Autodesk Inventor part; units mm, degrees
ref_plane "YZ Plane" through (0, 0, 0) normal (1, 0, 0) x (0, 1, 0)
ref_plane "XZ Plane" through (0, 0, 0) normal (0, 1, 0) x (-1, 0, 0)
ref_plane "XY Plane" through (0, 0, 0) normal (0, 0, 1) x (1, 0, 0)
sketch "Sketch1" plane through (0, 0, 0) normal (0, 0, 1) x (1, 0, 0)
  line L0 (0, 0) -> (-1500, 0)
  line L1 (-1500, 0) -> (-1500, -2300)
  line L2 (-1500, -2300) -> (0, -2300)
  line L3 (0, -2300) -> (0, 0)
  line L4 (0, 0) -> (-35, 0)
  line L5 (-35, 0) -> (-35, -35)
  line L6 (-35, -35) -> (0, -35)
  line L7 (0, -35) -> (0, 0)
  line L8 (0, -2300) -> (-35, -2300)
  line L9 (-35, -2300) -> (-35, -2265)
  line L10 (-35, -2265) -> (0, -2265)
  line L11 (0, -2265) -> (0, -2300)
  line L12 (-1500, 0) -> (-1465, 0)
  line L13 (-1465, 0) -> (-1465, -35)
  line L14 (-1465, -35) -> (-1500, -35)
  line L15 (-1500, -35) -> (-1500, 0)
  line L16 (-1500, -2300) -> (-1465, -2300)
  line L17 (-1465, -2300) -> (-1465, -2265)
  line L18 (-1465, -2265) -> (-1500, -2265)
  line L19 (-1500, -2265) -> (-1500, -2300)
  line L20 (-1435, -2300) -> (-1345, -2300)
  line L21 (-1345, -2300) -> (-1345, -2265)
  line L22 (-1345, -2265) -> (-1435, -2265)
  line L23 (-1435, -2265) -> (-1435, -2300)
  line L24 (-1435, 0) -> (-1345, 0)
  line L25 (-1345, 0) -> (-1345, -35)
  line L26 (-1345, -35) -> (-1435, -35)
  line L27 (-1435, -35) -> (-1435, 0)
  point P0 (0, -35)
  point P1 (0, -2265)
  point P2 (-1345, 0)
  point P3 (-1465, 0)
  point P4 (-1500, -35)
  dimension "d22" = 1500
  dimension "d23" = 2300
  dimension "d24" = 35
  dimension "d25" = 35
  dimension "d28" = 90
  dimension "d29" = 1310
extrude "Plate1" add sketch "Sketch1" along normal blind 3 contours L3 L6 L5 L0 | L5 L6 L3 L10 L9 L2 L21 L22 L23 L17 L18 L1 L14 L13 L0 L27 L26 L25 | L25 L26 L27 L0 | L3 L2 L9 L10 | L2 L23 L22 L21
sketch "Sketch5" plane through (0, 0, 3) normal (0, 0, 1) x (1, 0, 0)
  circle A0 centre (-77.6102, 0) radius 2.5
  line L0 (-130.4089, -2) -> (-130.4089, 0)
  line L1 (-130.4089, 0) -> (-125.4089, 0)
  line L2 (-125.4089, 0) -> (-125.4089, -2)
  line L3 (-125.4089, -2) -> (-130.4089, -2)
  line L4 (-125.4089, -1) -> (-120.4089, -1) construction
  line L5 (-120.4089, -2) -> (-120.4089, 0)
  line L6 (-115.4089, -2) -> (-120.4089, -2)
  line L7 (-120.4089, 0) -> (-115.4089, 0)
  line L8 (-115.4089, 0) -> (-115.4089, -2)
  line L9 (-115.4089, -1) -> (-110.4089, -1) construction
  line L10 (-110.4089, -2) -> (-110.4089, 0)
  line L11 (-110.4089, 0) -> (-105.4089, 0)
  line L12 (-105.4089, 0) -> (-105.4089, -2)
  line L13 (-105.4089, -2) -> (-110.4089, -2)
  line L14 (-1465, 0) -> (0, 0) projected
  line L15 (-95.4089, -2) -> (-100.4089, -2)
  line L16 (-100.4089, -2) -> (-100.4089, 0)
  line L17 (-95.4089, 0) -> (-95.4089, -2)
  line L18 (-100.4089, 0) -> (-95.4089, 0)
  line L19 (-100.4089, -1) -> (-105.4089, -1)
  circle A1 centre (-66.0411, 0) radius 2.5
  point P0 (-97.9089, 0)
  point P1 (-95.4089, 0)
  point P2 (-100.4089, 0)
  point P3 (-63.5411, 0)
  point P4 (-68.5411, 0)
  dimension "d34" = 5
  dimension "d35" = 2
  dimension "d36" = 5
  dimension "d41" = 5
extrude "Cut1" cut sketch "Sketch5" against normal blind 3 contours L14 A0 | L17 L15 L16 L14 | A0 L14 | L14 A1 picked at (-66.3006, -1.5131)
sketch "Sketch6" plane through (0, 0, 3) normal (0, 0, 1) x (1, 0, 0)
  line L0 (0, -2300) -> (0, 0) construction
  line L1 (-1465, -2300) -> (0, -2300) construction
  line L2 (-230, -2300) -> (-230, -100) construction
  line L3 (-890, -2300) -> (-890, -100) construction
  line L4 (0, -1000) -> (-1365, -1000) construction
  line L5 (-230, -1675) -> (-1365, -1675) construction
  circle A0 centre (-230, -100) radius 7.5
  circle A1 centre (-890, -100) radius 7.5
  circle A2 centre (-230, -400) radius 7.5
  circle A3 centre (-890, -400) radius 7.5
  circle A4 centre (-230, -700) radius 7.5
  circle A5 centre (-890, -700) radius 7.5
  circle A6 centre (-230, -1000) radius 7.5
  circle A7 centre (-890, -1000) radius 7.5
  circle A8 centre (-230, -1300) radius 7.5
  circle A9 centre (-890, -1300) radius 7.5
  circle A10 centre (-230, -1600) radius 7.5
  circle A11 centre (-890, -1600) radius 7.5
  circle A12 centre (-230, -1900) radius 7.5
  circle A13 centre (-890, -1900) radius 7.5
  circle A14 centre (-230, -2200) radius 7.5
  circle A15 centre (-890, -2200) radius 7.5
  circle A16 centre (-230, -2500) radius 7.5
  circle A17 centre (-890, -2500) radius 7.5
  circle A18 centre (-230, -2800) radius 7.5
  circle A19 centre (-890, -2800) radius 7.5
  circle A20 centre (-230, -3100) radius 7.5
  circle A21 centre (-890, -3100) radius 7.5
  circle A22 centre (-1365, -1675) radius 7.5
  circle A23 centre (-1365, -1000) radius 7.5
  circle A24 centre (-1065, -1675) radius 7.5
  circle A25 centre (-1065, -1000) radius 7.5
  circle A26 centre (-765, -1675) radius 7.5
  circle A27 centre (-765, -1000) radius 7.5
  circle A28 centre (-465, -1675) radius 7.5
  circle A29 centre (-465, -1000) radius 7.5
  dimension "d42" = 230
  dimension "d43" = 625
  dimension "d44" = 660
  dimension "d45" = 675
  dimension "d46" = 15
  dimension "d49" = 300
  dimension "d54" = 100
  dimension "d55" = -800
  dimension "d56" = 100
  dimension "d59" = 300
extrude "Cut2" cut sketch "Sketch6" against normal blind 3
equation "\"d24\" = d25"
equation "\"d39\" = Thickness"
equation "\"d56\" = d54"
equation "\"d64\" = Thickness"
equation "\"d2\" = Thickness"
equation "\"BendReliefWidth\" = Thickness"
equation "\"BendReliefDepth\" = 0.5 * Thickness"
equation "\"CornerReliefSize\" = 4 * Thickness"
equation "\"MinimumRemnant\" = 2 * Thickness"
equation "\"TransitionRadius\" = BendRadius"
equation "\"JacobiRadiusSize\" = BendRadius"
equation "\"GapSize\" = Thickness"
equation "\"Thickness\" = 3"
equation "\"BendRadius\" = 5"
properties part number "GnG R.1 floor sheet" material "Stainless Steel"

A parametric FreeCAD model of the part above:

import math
import FreeCAD as App
import Part
import Sketcher
Q = App.Units.Quantity

doc = App.newDocument("Part")
params = doc.addObject("Spreadsheet::Sheet", "Params")
for row, (alias, value) in enumerate([
    ("sketch1_width", "35 mm"),
    ("sketch1_height", "2300 mm"),
    ("pad1_length", "3 mm"),
    ("sketch2_diameter", "5 mm"),
    ("sketch2_height", "2 mm"),
    ("pocket1_length", "3 mm"),
    ("sketch3_diameter", "15 mm"),
    ("pocket2_length", "3 mm"),
], start=1):
    params.set(f"A{row}", alias)
    params.set(f"B{row}", "=" + value)
    params.setAlias(f"B{row}", alias)

body = doc.addObject("PartDesign::Body", "Body")

# Sketch on XY plane
sketch1 = body.newObject("Sketcher::SketchObject", "Sketch")
sketch1.AttachmentSupport = (doc.getObject("XY_Plane"), [""])
sketch1.MapMode = "FlatFace"
sketch1.addGeometry(Part.LineSegment(App.Vector(0, 0, 0), App.Vector(-1465, 0, 0)), False)
sketch1.addGeometry(Part.LineSegment(App.Vector(-1465, 0, 0), App.Vector(-1465, -35, 0)), False)
sketch1.addGeometry(Part.LineSegment(App.Vector(-1465, -35, 0), App.Vector(-1500, -35, 0)), False)
sketch1.addGeometry(Part.LineSegment(App.Vector(-1500, -35, 0), App.Vector(-1500, -2265, 0)), False)
sketch1.addGeometry(Part.LineSegment(App.Vector(-1500, -2265, 0), App.Vector(-1465, -2265, 0)), False)
sketch1.addGeometry(Part.LineSegment(App.Vector(-1465, -2265, 0), App.Vector(-1465, -2300, 0)), False)
sketch1.addGeometry(Part.LineSegment(App.Vector(-1465, -2300, 0), App.Vector(0, -2300, 0)), False)
sketch1.addGeometry(Part.LineSegment(App.Vector(0, -2300, 0), App.Vector(0, 0, 0)), False)
sketch1.addConstraint(Sketcher.Constraint("Coincident", 0, 2, 1, 1))
sketch1.addConstraint(Sketcher.Constraint("Coincident", 1, 2, 2, 1))
sketch1.addConstraint(Sketcher.Constraint("Coincident", 2, 2, 3, 1))
sketch1.addConstraint(Sketcher.Constraint("Coincident", 3, 2, 4, 1))
sketch1.addConstraint(Sketcher.Constraint("Coincident", 4, 2, 5, 1))
sketch1.addConstraint(Sketcher.Constraint("Coincident", 5, 2, 6, 1))
sketch1.addConstraint(Sketcher.Constraint("Coincident", 6, 2, 7, 1))
sketch1.addConstraint(Sketcher.Constraint("Coincident", 7, 2, 0, 1))
sketch1.addConstraint(Sketcher.Constraint("Horizontal", 0))
sketch1.addConstraint(Sketcher.Constraint("Vertical", 1))
sketch1.addConstraint(Sketcher.Constraint("Horizontal", 2))
sketch1.addConstraint(Sketcher.Constraint("Vertical", 3))
sketch1.addConstraint(Sketcher.Constraint("Horizontal", 4))
sketch1.addConstraint(Sketcher.Constraint("Vertical", 5))
sketch1.addConstraint(Sketcher.Constraint("Horizontal", 6))
sketch1.addConstraint(Sketcher.Constraint("Vertical", 7))
sketch1.addConstraint(Sketcher.Constraint("Coincident", 7, 2, -1, 1))
sketch1.addConstraint(Sketcher.Constraint("Vertical", 1, 2, 4, 2))
sketch1.addConstraint(Sketcher.Constraint("Equal", 4, 1))
sketch1.addConstraint(Sketcher.Constraint("Equal", 1, 5))
sketch1.addConstraint(Sketcher.Constraint("DistanceX", 2, 2, 2, 1, Q("35 mm")))
sketch1.addConstraint(Sketcher.Constraint("DistanceY", 7, 1, 7, 2, Q("2300 mm")))
sketch1.addConstraint(Sketcher.Constraint("DistanceX", 2, 2, -1, 1, Q("1500 mm")))
sketch1.setExpression("Constraints[20]", "Params.sketch1_width")
sketch1.setExpression("Constraints[21]", "Params.sketch1_height")
pad1 = body.newObject("PartDesign::Pad", "Pad")
pad1.Profile = sketch1
pad1.setExpression("Length", "Params.pad1_length")

# Sketch on XY plane
sketch2 = body.newObject("Sketcher::SketchObject", "Sketch001")
sketch2.AttachmentSupport = (doc.getObject("XY_Plane"), [""])
sketch2.MapMode = "FlatFace"
sketch2.AttachmentOffset = App.Placement(App.Vector(0, 0, 3), App.Rotation())
sketch2.addGeometry(Part.Circle(App.Vector(-77.6, 0, 0), App.Vector(0, 0, 1), 2.5), False)
sketch2.addGeometry(Part.LineSegment(App.Vector(-95.4, -2, 0), App.Vector(-95.4, 0, 0)), False)
sketch2.addGeometry(Part.LineSegment(App.Vector(-95.4, 0, 0), App.Vector(-100.4, 0, 0)), False)
sketch2.addGeometry(Part.LineSegment(App.Vector(-100.4, 0, 0), App.Vector(-100.4, -2, 0)), False)
sketch2.addGeometry(Part.LineSegment(App.Vector(-100.4, -2, 0), App.Vector(-95.4, -2, 0)), False)
sketch2.addGeometry(Part.LineSegment(App.Vector(-63.5, 0, 0), App.Vector(-68.5, 0, 0)), False)
sketch2.addGeometry(Part.ArcOfCircle(Part.Circle(App.Vector(-66, 0, 0), App.Vector(0, 0, 1), 2.5), math.radians(180), math.radians(360)), False)
sketch2.addConstraint(Sketcher.Constraint("Coincident", 1, 2, 2, 1))
sketch2.addConstraint(Sketcher.Constraint("Coincident", 2, 2, 3, 1))
sketch2.addConstraint(Sketcher.Constraint("Coincident", 3, 2, 4, 1))
sketch2.addConstraint(Sketcher.Constraint("Coincident", 4, 2, 1, 1))
sketch2.addConstraint(Sketcher.Constraint("Coincident", 5, 1, 6, 2))
sketch2.addConstraint(Sketcher.Constraint("Coincident", 6, 1, 5, 2))
sketch2.addConstraint(Sketcher.Constraint("Vertical", 1))
sketch2.addConstraint(Sketcher.Constraint("Horizontal", 2))
sketch2.addConstraint(Sketcher.Constraint("Vertical", 3))
sketch2.addConstraint(Sketcher.Constraint("Horizontal", 4))
sketch2.addConstraint(Sketcher.Constraint("Horizontal", 5))
sketch2.addConstraint(Sketcher.Constraint("Equal", 0, 6))
sketch2.addConstraint(Sketcher.Constraint("PointOnObject", 0, 3, -1))
sketch2.addConstraint(Sketcher.Constraint("PointOnObject", 6, 3, -1))
sketch2.addConstraint(Sketcher.Constraint("PointOnObject", 1, 2, -1))
sketch2.addConstraint(Sketcher.Constraint("PointOnObject", 5, 1, -1))
sketch2.addConstraint(Sketcher.Constraint("Equal", 4, 5))
sketch2.addConstraint(Sketcher.Constraint("Diameter", 0, Q("5 mm")))
sketch2.addConstraint(Sketcher.Constraint("DistanceY", 1, 1, 1, 2, Q("2 mm")))
sketch2.addConstraint(Sketcher.Constraint("DistanceX", 6, 3, -1, 1, Q("66.041 mm")))
sketch2.addConstraint(Sketcher.Constraint("DistanceX", 1, 2, -1, 1, Q("95.409 mm")))
sketch2.addConstraint(Sketcher.Constraint("DistanceX", 0, 3, 6, 3, Q("11.569 mm")))
sketch2.setExpression("Constraints[17]", "Params.sketch2_diameter")
sketch2.setExpression("Constraints[18]", "Params.sketch2_height")
pocket1 = body.newObject("PartDesign::Pocket", "Pocket")
pocket1.Profile = sketch2
pocket1.setExpression("Length", "Params.pocket1_length")

# Sketch on XY plane
sketch3 = body.newObject("Sketcher::SketchObject", "Sketch002")
sketch3.AttachmentSupport = (doc.getObject("XY_Plane"), [""])
sketch3.MapMode = "FlatFace"
sketch3.AttachmentOffset = App.Placement(App.Vector(0, 0, 3), App.Rotation())
sketch3.addGeometry(Part.Circle(App.Vector(-230, -100, 0), App.Vector(0, 0, 1), 8), False)
sketch3.addGeometry(Part.Circle(App.Vector(-890, -100, 0), App.Vector(0, 0, 1), 8), False)
sketch3.addGeometry(Part.Circle(App.Vector(-230, -400, 0), App.Vector(0, 0, 1), 8), False)
sketch3.addGeometry(Part.Circle(App.Vector(-890, -400, 0), App.Vector(0, 0, 1), 8), False)
sketch3.addGeometry(Part.Circle(App.Vector(-230, -700, 0), App.Vector(0, 0, 1), 8), False)
sketch3.addGeometry(Part.Circle(App.Vector(-890, -700, 0), App.Vector(0, 0, 1), 8), False)
sketch3.addGeometry(Part.Circle(App.Vector(-230, -1000, 0), App.Vector(0, 0, 1), 8), False)
sketch3.addGeometry(Part.Circle(App.Vector(-890, -1000, 0), App.Vector(0, 0, 1), 8), False)
sketch3.addGeometry(Part.Circle(App.Vector(-230, -1300, 0), App.Vector(0, 0, 1), 8), False)
sketch3.addGeometry(Part.Circle(App.Vector(-890, -1300, 0), App.Vector(0, 0, 1), 8), False)
sketch3.addGeometry(Part.Circle(App.Vector(-230, -1600, 0), App.Vector(0, 0, 1), 8), False)
sketch3.addGeometry(Part.Circle(App.Vector(-890, -1600, 0), App.Vector(0, 0, 1), 8), False)
sketch3.addGeometry(Part.Circle(App.Vector(-230, -1900, 0), App.Vector(0, 0, 1), 8), False)
sketch3.addGeometry(Part.Circle(App.Vector(-890, -1900, 0), App.Vector(0, 0, 1), 8), False)
sketch3.addGeometry(Part.Circle(App.Vector(-230, -2200, 0), App.Vector(0, 0, 1), 8), False)
sketch3.addGeometry(Part.Circle(App.Vector(-890, -2200, 0), App.Vector(0, 0, 1), 8), False)
sketch3.addGeometry(Part.Circle(App.Vector(-230, -2500, 0), App.Vector(0, 0, 1), 8), False)
sketch3.addGeometry(Part.Circle(App.Vector(-890, -2500, 0), App.Vector(0, 0, 1), 8), False)
sketch3.addGeometry(Part.Circle(App.Vector(-230, -2800, 0), App.Vector(0, 0, 1), 8), False)
sketch3.addGeometry(Part.Circle(App.Vector(-890, -2800, 0), App.Vector(0, 0, 1), 8), False)
sketch3.addGeometry(Part.Circle(App.Vector(-230, -3100, 0), App.Vector(0, 0, 1), 8), False)
sketch3.addGeometry(Part.Circle(App.Vector(-890, -3100, 0), App.Vector(0, 0, 1), 8), False)
sketch3.addGeometry(Part.Circle(App.Vector(-1365, -1675, 0), App.Vector(0, 0, 1), 8), False)
sketch3.addGeometry(Part.Circle(App.Vector(-1365, -1000, 0), App.Vector(0, 0, 1), 8), False)
sketch3.addGeometry(Part.Circle(App.Vector(-1065, -1675, 0), App.Vector(0, 0, 1), 8), False)
sketch3.addGeometry(Part.Circle(App.Vector(-1065, -1000, 0), App.Vector(0, 0, 1), 8), False)
sketch3.addGeometry(Part.Circle(App.Vector(-765, -1675, 0), App.Vector(0, 0, 1), 8), False)
sketch3.addGeometry(Part.Circle(App.Vector(-765, -1000, 0), App.Vector(0, 0, 1), 8), False)
sketch3.addGeometry(Part.Circle(App.Vector(-465, -1675, 0), App.Vector(0, 0, 1), 8), False)
sketch3.addGeometry(Part.Circle(App.Vector(-465, -1000, 0), App.Vector(0, 0, 1), 8), False)
sketch3.addConstraint(Sketcher.Constraint("Equal", 0, 1))
sketch3.addConstraint(Sketcher.Constraint("Equal", 1, 2))
sketch3.addConstraint(Sketcher.Constraint("Equal", 2, 3))
sketch3.addConstraint(Sketcher.Constraint("Equal", 3, 4))
sketch3.addConstraint(Sketcher.Constraint("Equal", 4, 5))
sketch3.addConstraint(Sketcher.Constraint("Equal", 5, 6))
sketch3.addConstraint(Sketcher.Constraint("Equal", 6, 7))
sketch3.addConstraint(Sketcher.Constraint("Equal", 7, 8))
sketch3.addConstraint(Sketcher.Constraint("Equal", 8, 9))
sketch3.addConstraint(Sketcher.Constraint("Equal", 9, 10))
sketch3.addConstraint(Sketcher.Constraint("Equal", 10, 11))
sketch3.addConstraint(Sketcher.Constraint("Equal", 11, 12))
sketch3.addConstraint(Sketcher.Constraint("Equal", 12, 13))
sketch3.addConstraint(Sketcher.Constraint("Equal", 13, 14))
sketch3.addConstraint(Sketcher.Constraint("Equal", 14, 15))
sketch3.addConstraint(Sketcher.Constraint("Equal", 15, 16))
sketch3.addConstraint(Sketcher.Constraint("Equal", 16, 17))
sketch3.addConstraint(Sketcher.Constraint("Equal", 17, 18))
sketch3.addConstraint(Sketcher.Constraint("Equal", 18, 19))
sketch3.addConstraint(Sketcher.Constraint("Equal", 19, 20))
sketch3.addConstraint(Sketcher.Constraint("Equal", 20, 21))
sketch3.addConstraint(Sketcher.Constraint("Equal", 21, 22))
sketch3.addConstraint(Sketcher.Constraint("Equal", 22, 23))
sketch3.addConstraint(Sketcher.Constraint("Equal", 23, 24))
sketch3.addConstraint(Sketcher.Constraint("Equal", 24, 25))
sketch3.addConstraint(Sketcher.Constraint("Equal", 25, 26))
sketch3.addConstraint(Sketcher.Constraint("Equal", 26, 27))
sketch3.addConstraint(Sketcher.Constraint("Equal", 27, 28))
sketch3.addConstraint(Sketcher.Constraint("Equal", 28, 29))
sketch3.addConstraint(Sketcher.Constraint("Horizontal", 0, 3, 1, 3))
sketch3.addConstraint(Sketcher.Constraint("Horizontal", 2, 3, 3, 3))
sketch3.addConstraint(Sketcher.Constraint("Horizontal", 4, 3, 5, 3))
sketch3.addConstraint(Sketcher.Constraint("Horizontal", 6, 3, 7, 3))
sketch3.addConstraint(Sketcher.Constraint("Horizontal", 8, 3, 9, 3))
sketch3.addConstraint(Sketcher.Constraint("Horizontal", 10, 3, 11, 3))
sketch3.addConstraint(Sketcher.Constraint("Horizontal", 12, 3, 13, 3))
sketch3.addConstraint(Sketcher.Constraint("Horizontal", 14, 3, 15, 3))
sketch3.addConstraint(Sketcher.Constraint("Horizontal", 16, 3, 17, 3))
sketch3.addConstraint(Sketcher.Constraint("Horizontal", 18, 3, 19, 3))
sketch3.addConstraint(Sketcher.Constraint("Horizontal", 20, 3, 21, 3))
sketch3.addConstraint(Sketcher.Constraint("Horizontal", 7, 3, 23, 3))
sketch3.addConstraint(Sketcher.Constraint("Horizontal", 22, 3, 24, 3))
sketch3.addConstraint(Sketcher.Constraint("Horizontal", 23, 3, 25, 3))
sketch3.addConstraint(Sketcher.Constraint("Horizontal", 24, 3, 26, 3))
sketch3.addConstraint(Sketcher.Constraint("Horizontal", 25, 3, 27, 3))
sketch3.addConstraint(Sketcher.Constraint("Horizontal", 26, 3, 28, 3))
sketch3.addConstraint(Sketcher.Constraint("Horizontal", 27, 3, 29, 3))
sketch3.addConstraint(Sketcher.Constraint("Vertical", 0, 3, 2, 3))
sketch3.addConstraint(Sketcher.Constraint("Vertical", 1, 3, 3, 3))
sketch3.addConstraint(Sketcher.Constraint("Vertical", 2, 3, 4, 3))
sketch3.addConstraint(Sketcher.Constraint("Vertical", 3, 3, 5, 3))
sketch3.addConstraint(Sketcher.Constraint("Vertical", 4, 3, 6, 3))
sketch3.addConstraint(Sketcher.Constraint("Vertical", 5, 3, 7, 3))
sketch3.addConstraint(Sketcher.Constraint("Vertical", 6, 3, 8, 3))
sketch3.addConstraint(Sketcher.Constraint("Vertical", 7, 3, 9, 3))
sketch3.addConstraint(Sketcher.Constraint("Vertical", 8, 3, 10, 3))
sketch3.addConstraint(Sketcher.Constraint("Vertical", 9, 3, 11, 3))
sketch3.addConstraint(Sketcher.Constraint("Vertical", 10, 3, 12, 3))
sketch3.addConstraint(Sketcher.Constraint("Vertical", 11, 3, 13, 3))
sketch3.addConstraint(Sketcher.Constraint("Vertical", 12, 3, 14, 3))
sketch3.addConstraint(Sketcher.Constraint("Vertical", 13, 3, 15, 3))
sketch3.addConstraint(Sketcher.Constraint("Vertical", 14, 3, 16, 3))
sketch3.addConstraint(Sketcher.Constraint("Vertical", 15, 3, 17, 3))
sketch3.addConstraint(Sketcher.Constraint("Vertical", 16, 3, 18, 3))
sketch3.addConstraint(Sketcher.Constraint("Vertical", 17, 3, 19, 3))
sketch3.addConstraint(Sketcher.Constraint("Vertical", 18, 3, 20, 3))
sketch3.addConstraint(Sketcher.Constraint("Vertical", 19, 3, 21, 3))
sketch3.addConstraint(Sketcher.Constraint("Vertical", 22, 3, 23, 3))
sketch3.addConstraint(Sketcher.Constraint("Vertical", 24, 3, 25, 3))
sketch3.addConstraint(Sketcher.Constraint("Vertical", 26, 3, 27, 3))
sketch3.addConstraint(Sketcher.Constraint("Vertical", 28, 3, 29, 3))
sketch3.addConstraint(Sketcher.Constraint("Diameter", 0, Q("15 mm")))
sketch3.addConstraint(Sketcher.Constraint("DistanceX", 0, 3, -1, 1, Q("230 mm")))
sketch3.addConstraint(Sketcher.Constraint("DistanceY", 0, 3, -1, 1, Q("100 mm")))
sketch3.addConstraint(Sketcher.Constraint("DistanceX", 1, 3, 0, 3, Q("660 mm")))
sketch3.addConstraint(Sketcher.Constraint("DistanceY", 2, 3, 0, 3, Q("300 mm")))
sketch3.addConstraint(Sketcher.Constraint("DistanceY", 4, 3, 2, 3, Q("300 mm")))
sketch3.addConstraint(Sketcher.Constraint("DistanceY", 6, 3, 4, 3, Q("300 mm")))
sketch3.addConstraint(Sketcher.Constraint("DistanceY", 8, 3, 6, 3, Q("300 mm")))
sketch3.addConstraint(Sketcher.Constraint("DistanceY", 10, 3, 8, 3, Q("300 mm")))
sketch3.addConstraint(Sketcher.Constraint("DistanceY", 12, 3, 10, 3, Q("300 mm")))
sketch3.addConstraint(Sketcher.Constraint("DistanceY", 14, 3, 12, 3, Q("300 mm")))
sketch3.addConstraint(Sketcher.Constraint("DistanceY", 16, 3, 14, 3, Q("300 mm")))
sketch3.addConstraint(Sketcher.Constraint("DistanceY", 18, 3, 16, 3, Q("300 mm")))
sketch3.addConstraint(Sketcher.Constraint("DistanceY", 20, 3, 18, 3, Q("300 mm")))
sketch3.addConstraint(Sketcher.Constraint("DistanceY", 22, 3, 7, 3, Q("675 mm")))
sketch3.addConstraint(Sketcher.Constraint("DistanceX", 22, 3, 24, 3, Q("300 mm")))
sketch3.addConstraint(Sketcher.Constraint("DistanceX", 24, 3, 26, 3, Q("300 mm")))
sketch3.addConstraint(Sketcher.Constraint("DistanceX", 26, 3, 28, 3, Q("300 mm")))
sketch3.addConstraint(Sketcher.Constraint("DistanceX", 22, 3, -1, 1, Q("1365 mm")))
sketch3.setExpression("Constraints[71]", "Params.sketch3_diameter")
pocket2 = body.newObject("PartDesign::Pocket", "Pocket001")
pocket2.Profile = sketch3
pocket2.setExpression("Length", "Params.pocket2_length")

doc.recompute()
